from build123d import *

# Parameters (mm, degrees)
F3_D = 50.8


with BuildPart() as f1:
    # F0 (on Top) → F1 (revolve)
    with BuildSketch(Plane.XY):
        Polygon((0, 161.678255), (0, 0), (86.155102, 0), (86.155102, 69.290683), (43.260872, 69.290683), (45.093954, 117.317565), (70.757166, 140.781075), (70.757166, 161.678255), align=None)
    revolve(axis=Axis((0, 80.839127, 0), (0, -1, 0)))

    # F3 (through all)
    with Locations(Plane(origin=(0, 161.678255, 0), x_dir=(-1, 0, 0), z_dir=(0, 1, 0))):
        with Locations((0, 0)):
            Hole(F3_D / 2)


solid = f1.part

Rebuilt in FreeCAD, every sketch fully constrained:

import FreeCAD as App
import Part
import Sketcher
Q = App.Units.Quantity


def add_polygon(sketch, points):
    """Adds a closed chain of lines whose ends are joined by coincident constraints."""
    first, n = sketch.GeometryCount, len(points)
    for a, b in zip(points, points[1:] + points[:1]):
        sketch.addGeometry(Part.LineSegment(App.Vector(*a, 0), App.Vector(*b, 0)), False)
    for i in range(n):
        sketch.addConstraint(Sketcher.Constraint("Coincident", first + i, 2, first + (i + 1) % n, 1))

doc = App.newDocument("Part")
params = doc.addObject("Spreadsheet::Sheet", "Params")
for row, (alias, value) in enumerate([
    ("revolution_angle", "360 deg"),
    ("sketch2_diameter", "2 in"),
    ("hole_diameter", "2 in"),
], start=1):
    params.set(f"A{row}", alias)
    params.set(f"B{row}", "=" + value)
    params.setAlias(f"B{row}", alias)

body = doc.addObject("PartDesign::Body", "Body")

# Sketch on XY plane
sketch1 = body.newObject("Sketcher::SketchObject", "Sketch")
sketch1.AttachmentSupport = (doc.getObject("XY_Plane"), [""])
sketch1.MapMode = "FlatFace"
add_polygon(sketch1, [(0, 162), (0, 0), (86, 0), (86, 69), (43, 69), (45, 117), (71, 141), (71, 162)])  # lines 0-7
sketch1.addConstraint(Sketcher.Constraint("Vertical", 0))
sketch1.addConstraint(Sketcher.Constraint("Horizontal", 1))
sketch1.addConstraint(Sketcher.Constraint("Vertical", 2))
sketch1.addConstraint(Sketcher.Constraint("Horizontal", 3))
sketch1.addConstraint(Sketcher.Constraint("Vertical", 6))
sketch1.addConstraint(Sketcher.Constraint("Horizontal", 7))
sketch1.addConstraint(Sketcher.Constraint("Coincident", 0, 2, -1, 1))
sketch1.addConstraint(Sketcher.Constraint("DistanceX", 1, 1, 1, 2, Q("86.155102 mm")))
sketch1.addConstraint(Sketcher.Constraint("DistanceX", 3, 2, 3, 1, Q("42.89423 mm")))
sketch1.addConstraint(Sketcher.Constraint("DistanceY", 6, 1, 6, 2, Q("20.89718 mm")))
sketch1.addConstraint(Sketcher.Constraint("Distance", 4, Q("48.061852 mm")))
sketch1.addConstraint(Sketcher.Constraint("DistanceX", 7, 2, 7, 1, Q("70.757166 mm")))
sketch1.addConstraint(Sketcher.Constraint("DistanceY", 0, 2, 0, 1, Q("161.678255 mm")))
sketch1.addConstraint(Sketcher.Constraint("DistanceY", 2, 1, 2, 2, Q("69.290683 mm")))
sketch1.addConstraint(Sketcher.Constraint("DistanceX", 3, 2, 4, 2, Q("1.833082 mm")))
revolution = body.newObject("PartDesign::Revolution", "Revolution")
revolution.Profile = sketch1
revolution.ReferenceAxis = (sketch1, ["V_Axis"])
revolution.setExpression("Angle", "Params.revolution_angle")

# Sketch on XZ plane
sketch2 = body.newObject("Sketcher::SketchObject", "Sketch001")
sketch2.AttachmentSupport = (doc.getObject("XZ_Plane"), [""])
sketch2.MapMode = "FlatFace"
sketch2.AttachmentOffset = App.Placement(App.Vector(0, 0, -161.678255), App.Rotation())
sketch2.addGeometry(Part.Circle(App.Vector(0, 0, 0), App.Vector(0, 0, 1), 25), False)
sketch2.addConstraint(Sketcher.Constraint("Coincident", 0, 3, -1, 1))
sketch2.addConstraint(Sketcher.Constraint("Diameter", 0, Q("2 in")))
sketch2.setExpression("Constraints[1]", "Params.sketch2_diameter")
doc.recompute()
hole = body.newObject("PartDesign::Hole", "Hole")
hole.Profile = sketch2
hole.ThreadType = "None"
hole.setExpression("Diameter", "Params.hole_diameter")
hole.DepthType = "ThroughAll"
hole.Reversed = True

doc.recompute()
